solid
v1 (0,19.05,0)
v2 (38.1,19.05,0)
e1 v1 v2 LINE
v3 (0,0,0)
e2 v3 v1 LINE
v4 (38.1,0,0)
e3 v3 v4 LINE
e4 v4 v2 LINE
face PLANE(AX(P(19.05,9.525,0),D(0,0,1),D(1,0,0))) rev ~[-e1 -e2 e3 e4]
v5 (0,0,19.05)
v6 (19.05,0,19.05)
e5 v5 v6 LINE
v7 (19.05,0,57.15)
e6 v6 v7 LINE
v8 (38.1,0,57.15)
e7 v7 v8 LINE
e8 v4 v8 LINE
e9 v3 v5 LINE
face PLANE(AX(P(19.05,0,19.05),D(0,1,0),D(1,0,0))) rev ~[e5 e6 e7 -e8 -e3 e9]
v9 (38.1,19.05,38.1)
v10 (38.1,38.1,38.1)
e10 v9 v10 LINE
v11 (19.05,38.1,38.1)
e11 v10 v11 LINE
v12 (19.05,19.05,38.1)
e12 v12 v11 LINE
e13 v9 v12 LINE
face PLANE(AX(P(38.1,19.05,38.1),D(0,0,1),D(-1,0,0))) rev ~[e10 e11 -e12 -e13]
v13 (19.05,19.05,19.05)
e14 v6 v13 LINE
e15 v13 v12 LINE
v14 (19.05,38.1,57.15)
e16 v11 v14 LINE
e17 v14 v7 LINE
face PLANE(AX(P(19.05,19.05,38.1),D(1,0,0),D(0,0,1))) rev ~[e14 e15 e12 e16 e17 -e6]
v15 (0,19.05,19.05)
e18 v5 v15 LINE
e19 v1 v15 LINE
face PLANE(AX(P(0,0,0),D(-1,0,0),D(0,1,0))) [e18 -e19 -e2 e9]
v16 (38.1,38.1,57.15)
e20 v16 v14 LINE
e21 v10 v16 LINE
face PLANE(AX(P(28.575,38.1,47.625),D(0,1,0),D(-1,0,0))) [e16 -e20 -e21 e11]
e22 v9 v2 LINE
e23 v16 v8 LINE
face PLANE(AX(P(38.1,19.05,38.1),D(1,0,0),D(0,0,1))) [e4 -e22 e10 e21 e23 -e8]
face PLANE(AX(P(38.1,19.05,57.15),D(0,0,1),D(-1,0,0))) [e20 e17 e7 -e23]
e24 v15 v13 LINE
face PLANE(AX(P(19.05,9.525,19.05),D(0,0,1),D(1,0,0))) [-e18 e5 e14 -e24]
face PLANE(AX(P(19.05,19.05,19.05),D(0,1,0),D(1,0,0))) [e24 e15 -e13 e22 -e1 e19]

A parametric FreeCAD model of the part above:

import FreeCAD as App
import Part
import Sketcher
Q = App.Units.Quantity

doc = App.newDocument("Part")
body = doc.addObject("PartDesign::Body", "Body")

sketch1 = doc.addObject("Sketcher::SketchObject", "Sketch")
body.addObject(sketch1)
sketch1.AttachmentSupport = (doc.XY_Plane, [""])
sketch1.MapMode = "FlatFace"
sketch1.addGeometry([
    Part.LineSegment(App.Vector(0, 19.05, 0), App.Vector(0, 0, 0)),
    Part.LineSegment(App.Vector(0, 0, 0), App.Vector(38.1, 0, 0)),
    Part.LineSegment(App.Vector(38.1, 0, 0), App.Vector(38.1, 19.05, 0)),
    Part.LineSegment(App.Vector(38.1, 19.05, 0), App.Vector(0, 19.05, 0)),
], False)
sketch1.addConstraint([
    Sketcher.Constraint("Coincident", 0, 2, 1, 1),
    Sketcher.Constraint("Coincident", 1, 2, 2, 1),
    Sketcher.Constraint("Coincident", 2, 2, 3, 1),
    Sketcher.Constraint("Coincident", 3, 2, 0, 1),
    Sketcher.Constraint("Vertical", 0),
    Sketcher.Constraint("Horizontal", 1),
    Sketcher.Constraint("Vertical", 2),
    Sketcher.Constraint("Horizontal", 3),
    Sketcher.Constraint("Coincident", 0, 2, -1, 1),
    Sketcher.Constraint("DistanceX", 1, 1, 1, 2, Q("1.5 in")),
    Sketcher.Constraint("DistanceY", 0, 2, 0, 1, Q("0.75 in")),
])
pad1 = doc.addObject("PartDesign::Pad", "Pad")
body.addObject(pad1)
pad1.Profile = sketch1
pad1.Length = Q("0.75 in")

sketch2 = doc.addObject("Sketcher::SketchObject", "Sketch001")
body.addObject(sketch2)
sketch2.AttachmentSupport = (doc.XY_Plane, [""])
sketch2.MapMode = "FlatFace"
sketch2.AttachmentOffset = App.Placement(App.Vector(0, 0, 0.75 * 25.4), App.Rotation())
sketch2.addGeometry([
    Part.LineSegment(App.Vector(19.05, 19.05, 0), App.Vector(19.05, 0, 0)),
    Part.LineSegment(App.Vector(19.05, 0, 0), App.Vector(38.1, 0, 0)),
    Part.LineSegment(App.Vector(38.1, 0, 0), App.Vector(38.1, 19.05, 0)),
    Part.LineSegment(App.Vector(38.1, 19.05, 0), App.Vector(19.05, 19.05, 0)),
], False)
sketch2.addConstraint([
    Sketcher.Constraint("Coincident", 0, 2, 1, 1),
    Sketcher.Constraint("Coincident", 1, 2, 2, 1),
    Sketcher.Constraint("Coincident", 2, 2, 3, 1),
    Sketcher.Constraint("Coincident", 3, 2, 0, 1),
    Sketcher.Constraint("Vertical", 0),
    Sketcher.Constraint("Horizontal", 1),
    Sketcher.Constraint("Vertical", 2),
    Sketcher.Constraint("Horizontal", 3),
    Sketcher.Constraint("PointOnObject", 0, 2, -1),
    Sketcher.Constraint("Equal", 3, 0),
    Sketcher.Constraint("DistanceX", 1, 1, 1, 2, Q("0.75 in")),
    Sketcher.Constraint("DistanceX", -1, 1, 1, 2, Q("1.5 in")),
])
pad2 = doc.addObject("PartDesign::Pad", "Pad001")
body.addObject(pad2)
pad2.Profile = sketch2
pad2.Length = Q("1.5 in")

sketch3 = doc.addObject("Sketcher::SketchObject", "Sketch002")
body.addObject(sketch3)
sketch3.AttachmentSupport = (doc.XZ_Plane, [""])
sketch3.MapMode = "FlatFace"
sketch3.AttachmentOffset = App.Placement(App.Vector(0, 0, -0.75 * 25.4), App.Rotation())
sketch3.addGeometry([
    Part.LineSegment(App.Vector(38.1, 57.15, 0), App.Vector(38.1, 38.1, 0)),
    Part.LineSegment(App.Vector(38.1, 38.1, 0), App.Vector(19.05, 38.1, 0)),
    Part.LineSegment(App.Vector(19.05, 38.1, 0), App.Vector(19.05, 57.15, 0)),
    Part.LineSegment(App.Vector(19.05, 57.15, 0), App.Vector(38.1, 57.15, 0)),
], False)
sketch3.addConstraint([
    Sketcher.Constraint("Coincident", 0, 2, 1, 1),
    Sketcher.Constraint("Coincident", 1, 2, 2, 1),
    Sketcher.Constraint("Coincident", 2, 2, 3, 1),
    Sketcher.Constraint("Coincident", 3, 2, 0, 1),
    Sketcher.Constraint("Vertical", 0),
    Sketcher.Constraint("Horizontal", 1),
    Sketcher.Constraint("Vertical", 2),
    Sketcher.Constraint("Horizontal", 3),
    Sketcher.Constraint("Equal", 3, 0),
    Sketcher.Constraint("DistanceX", 1, 2, 1, 1, Q("0.75 in")),
    Sketcher.Constraint("DistanceX", -1, 1, 0, 2, Q("1.5 in")),
    Sketcher.Constraint("DistanceY", -1, 1, 0, 2, Q("1.5 in")),
])
pad3 = doc.addObject("PartDesign::Pad", "Pad002")
body.addObject(pad3)
pad3.Profile = sketch3
pad3.Length = Q("0.75 in")
pad3.Reversed = True

doc.recompute()
